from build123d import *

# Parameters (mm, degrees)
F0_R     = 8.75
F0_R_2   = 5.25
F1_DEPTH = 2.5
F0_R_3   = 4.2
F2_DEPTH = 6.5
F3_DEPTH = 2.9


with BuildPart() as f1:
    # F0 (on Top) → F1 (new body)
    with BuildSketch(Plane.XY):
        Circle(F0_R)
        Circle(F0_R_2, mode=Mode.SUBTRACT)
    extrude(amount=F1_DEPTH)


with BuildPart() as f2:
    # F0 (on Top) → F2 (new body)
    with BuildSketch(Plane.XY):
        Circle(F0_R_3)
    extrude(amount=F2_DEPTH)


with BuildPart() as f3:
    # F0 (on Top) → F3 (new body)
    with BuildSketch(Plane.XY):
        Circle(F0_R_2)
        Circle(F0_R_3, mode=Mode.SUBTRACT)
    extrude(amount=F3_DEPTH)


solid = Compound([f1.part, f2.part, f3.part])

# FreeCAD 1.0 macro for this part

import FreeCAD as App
import Part
import Sketcher

V = App.Vector
Q = App.Units.Quantity

doc = App.newDocument("Part")
body = doc.addObject("PartDesign::Body", "Body")

sketch1 = body.newObject("Sketcher::SketchObject", "Sketch")
sketch1.AttachmentSupport = (doc.getObject("XY_Plane"), [""])
sketch1.MapMode = "FlatFace"
sketch1.addGeometry(Part.Circle(V(0, 0, 0), V(0, 0, 1), 9), False)
sketch1.addGeometry(Part.Circle(V(0, 0, 0), V(0, 0, 1), 5), False)
sketch1.addConstraint(Sketcher.Constraint("Coincident", 0, 3, -1, 1))
sketch1.addConstraint(Sketcher.Constraint("Coincident", 1, 3, -1, 1))
sketch1.addConstraint(Sketcher.Constraint("Diameter", 0, Q("17.5 mm")))
sketch1.addConstraint(Sketcher.Constraint("Diameter", 1, Q("10.5 mm")))
pad1 = body.newObject("PartDesign::Pad", "Pad")
pad1.Profile = sketch1
pad1.Length = 2.5
body2 = doc.addObject("PartDesign::Body", "Body001")

sketch2 = body2.newObject("Sketcher::SketchObject", "Sketch001")
sketch2.AttachmentSupport = (doc.getObject("XY_Plane001"), [""])
sketch2.MapMode = "FlatFace"
sketch2.addGeometry(Part.Circle(V(0, 0, 0), V(0, 0, 1), 4.2), False)
sketch2.addConstraint(Sketcher.Constraint("Coincident", 0, 3, -1, 1))
sketch2.addConstraint(Sketcher.Constraint("Diameter", 0, Q("8.4 mm")))
pad2 = body2.newObject("PartDesign::Pad", "Pad001")
pad2.Profile = sketch2
pad2.Length = 6.5
body3 = doc.addObject("PartDesign::Body", "Body002")

sketch3 = body3.newObject("Sketcher::SketchObject", "Sketch002")
sketch3.AttachmentSupport = (doc.getObject("XY_Plane002"), [""])
sketch3.MapMode = "FlatFace"
sketch3.addGeometry(Part.Circle(V(0, 0, 0), V(0, 0, 1), 5.2), False)
sketch3.addGeometry(Part.Circle(V(0, 0, 0), V(0, 0, 1), 4.2), False)
sketch3.addConstraint(Sketcher.Constraint("Coincident", 0, 3, -1, 1))
sketch3.addConstraint(Sketcher.Constraint("Coincident", 1, 3, -1, 1))
sketch3.addConstraint(Sketcher.Constraint("Diameter", 0, Q("10.5 mm")))
sketch3.addConstraint(Sketcher.Constraint("Diameter", 1, Q("8.4 mm")))
pad3 = body3.newObject("PartDesign::Pad", "Pad002")
pad3.Profile = sketch3
pad3.Length = 2.9

doc.recompute()
